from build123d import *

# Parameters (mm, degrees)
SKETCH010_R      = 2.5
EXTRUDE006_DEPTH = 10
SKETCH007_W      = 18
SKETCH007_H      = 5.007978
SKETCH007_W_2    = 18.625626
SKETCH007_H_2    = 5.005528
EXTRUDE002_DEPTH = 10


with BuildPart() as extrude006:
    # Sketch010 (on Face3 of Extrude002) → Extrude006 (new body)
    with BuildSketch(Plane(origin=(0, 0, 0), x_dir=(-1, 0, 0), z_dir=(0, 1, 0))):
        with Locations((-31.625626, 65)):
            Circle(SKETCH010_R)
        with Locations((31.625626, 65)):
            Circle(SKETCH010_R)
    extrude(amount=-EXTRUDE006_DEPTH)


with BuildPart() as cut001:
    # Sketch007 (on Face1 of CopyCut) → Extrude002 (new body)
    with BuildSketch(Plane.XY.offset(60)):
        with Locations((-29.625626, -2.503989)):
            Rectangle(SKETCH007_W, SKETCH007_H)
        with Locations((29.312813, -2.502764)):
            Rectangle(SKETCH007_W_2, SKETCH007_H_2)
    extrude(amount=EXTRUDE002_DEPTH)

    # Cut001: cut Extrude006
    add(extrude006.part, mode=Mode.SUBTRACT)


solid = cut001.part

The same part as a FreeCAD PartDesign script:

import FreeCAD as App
import Part
import Sketcher
from FreeCAD import Vector
Q = App.Units.Quantity

doc = App.newDocument("Part")
body = doc.addObject("PartDesign::Body", "Body")
body.AllowCompound = True

sketch1 = doc.addObject("Sketcher::SketchObject", "Sketch")
body.addObject(sketch1)
sketch1.AttachmentSupport = (doc.XZ_Plane, [""])
sketch1.MapMode = "FlatFace"
sketch1.addGeometry([
    Part.Circle(Vector(31.6, 65, 0), Vector(0, 0, 1), 2.5),
    Part.Circle(Vector(-31.6, 65, 0), Vector(0, 0, 1), 2.5),
], False)
sketch1.addConstraint([
    Sketcher.Constraint("Equal", 0, 1),
    Sketcher.Constraint("Symmetric", 0, 3, 1, 3, -2),
    Sketcher.Constraint("Diameter", 0, Q("5 mm")),
    Sketcher.Constraint("DistanceY", -1, 1, 0, 3, Q("65 mm")),
    Sketcher.Constraint("DistanceX", -1, 1, 0, 3, Q("31.625626 mm")),
])
pad1 = doc.addObject("PartDesign::Pad", "Pad")
body.addObject(pad1)
pad1.Profile = sketch1
pad1.Length = 10
body2 = doc.addObject("PartDesign::Body", "Body001")
body2.AllowCompound = True

sketch2 = doc.addObject("Sketcher::SketchObject", "Sketch001")
body2.addObject(sketch2)
sketch2.AttachmentSupport = (doc.getObject("XY_Plane001"), [""])
sketch2.MapMode = "FlatFace"
sketch2.AttachmentOffset = App.Placement(Vector(0, 0, 60), App.Rotation())
sketch2.addGeometry([
    Part.LineSegment(Vector(-39, 0, 0), Vector(-39, -5, 0)),
    Part.LineSegment(Vector(-39, -5, 0), Vector(-21, -5, 0)),
    Part.LineSegment(Vector(-21, -5, 0), Vector(-21, 0, 0)),
    Part.LineSegment(Vector(-21, 0, 0), Vector(-39, 0, 0)),
    Part.LineSegment(Vector(20, 0, 0), Vector(20, -5, 0)),
    Part.LineSegment(Vector(20, -5, 0), Vector(39, -5, 0)),
    Part.LineSegment(Vector(39, -5, 0), Vector(39, 0, 0)),
    Part.LineSegment(Vector(39, 0, 0), Vector(20, 0, 0)),
], False)
sketch2.addConstraint([
    Sketcher.Constraint("Coincident", 0, 2, 1, 1),
    Sketcher.Constraint("Coincident", 1, 2, 2, 1),
    Sketcher.Constraint("Coincident", 2, 2, 3, 1),
    Sketcher.Constraint("Coincident", 3, 2, 0, 1),
    Sketcher.Constraint("Coincident", 4, 2, 5, 1),
    Sketcher.Constraint("Coincident", 5, 2, 6, 1),
    Sketcher.Constraint("Coincident", 6, 2, 7, 1),
    Sketcher.Constraint("Coincident", 7, 2, 4, 1),
    Sketcher.Constraint("Vertical", 0),
    Sketcher.Constraint("Horizontal", 1),
    Sketcher.Constraint("Vertical", 2),
    Sketcher.Constraint("Horizontal", 3),
    Sketcher.Constraint("Vertical", 4),
    Sketcher.Constraint("Horizontal", 5),
    Sketcher.Constraint("Vertical", 6),
    Sketcher.Constraint("Horizontal", 7),
    Sketcher.Constraint("Symmetric", 3, 2, 6, 2, -1, 1),
    Sketcher.Constraint("PointOnObject", 2, 2, -1),
    Sketcher.Constraint("DistanceX", 1, 1, 1, 2, Q("18 mm")),
    Sketcher.Constraint("DistanceX", -1, 1, 4, 2, Q("20 mm")),
    Sketcher.Constraint("DistanceX", 5, 1, 5, 2, Q("18.625626 mm")),
    Sketcher.Constraint("DistanceY", 0, 2, 0, 1, Q("5.007978 mm")),
    Sketcher.Constraint("DistanceY", 4, 2, 4, 1, Q("5.005528 mm")),
])
pad2 = doc.addObject("PartDesign::Pad", "Pad001")
body2.addObject(pad2)
pad2.Profile = sketch2
pad2.Length = 10
doc.recompute()

boolean = doc.addObject("PartDesign::Boolean", "Boolean")
body2.addObject(boolean)
boolean.Type = "Cut"
boolean.addObjects([body])

doc.recompute()
